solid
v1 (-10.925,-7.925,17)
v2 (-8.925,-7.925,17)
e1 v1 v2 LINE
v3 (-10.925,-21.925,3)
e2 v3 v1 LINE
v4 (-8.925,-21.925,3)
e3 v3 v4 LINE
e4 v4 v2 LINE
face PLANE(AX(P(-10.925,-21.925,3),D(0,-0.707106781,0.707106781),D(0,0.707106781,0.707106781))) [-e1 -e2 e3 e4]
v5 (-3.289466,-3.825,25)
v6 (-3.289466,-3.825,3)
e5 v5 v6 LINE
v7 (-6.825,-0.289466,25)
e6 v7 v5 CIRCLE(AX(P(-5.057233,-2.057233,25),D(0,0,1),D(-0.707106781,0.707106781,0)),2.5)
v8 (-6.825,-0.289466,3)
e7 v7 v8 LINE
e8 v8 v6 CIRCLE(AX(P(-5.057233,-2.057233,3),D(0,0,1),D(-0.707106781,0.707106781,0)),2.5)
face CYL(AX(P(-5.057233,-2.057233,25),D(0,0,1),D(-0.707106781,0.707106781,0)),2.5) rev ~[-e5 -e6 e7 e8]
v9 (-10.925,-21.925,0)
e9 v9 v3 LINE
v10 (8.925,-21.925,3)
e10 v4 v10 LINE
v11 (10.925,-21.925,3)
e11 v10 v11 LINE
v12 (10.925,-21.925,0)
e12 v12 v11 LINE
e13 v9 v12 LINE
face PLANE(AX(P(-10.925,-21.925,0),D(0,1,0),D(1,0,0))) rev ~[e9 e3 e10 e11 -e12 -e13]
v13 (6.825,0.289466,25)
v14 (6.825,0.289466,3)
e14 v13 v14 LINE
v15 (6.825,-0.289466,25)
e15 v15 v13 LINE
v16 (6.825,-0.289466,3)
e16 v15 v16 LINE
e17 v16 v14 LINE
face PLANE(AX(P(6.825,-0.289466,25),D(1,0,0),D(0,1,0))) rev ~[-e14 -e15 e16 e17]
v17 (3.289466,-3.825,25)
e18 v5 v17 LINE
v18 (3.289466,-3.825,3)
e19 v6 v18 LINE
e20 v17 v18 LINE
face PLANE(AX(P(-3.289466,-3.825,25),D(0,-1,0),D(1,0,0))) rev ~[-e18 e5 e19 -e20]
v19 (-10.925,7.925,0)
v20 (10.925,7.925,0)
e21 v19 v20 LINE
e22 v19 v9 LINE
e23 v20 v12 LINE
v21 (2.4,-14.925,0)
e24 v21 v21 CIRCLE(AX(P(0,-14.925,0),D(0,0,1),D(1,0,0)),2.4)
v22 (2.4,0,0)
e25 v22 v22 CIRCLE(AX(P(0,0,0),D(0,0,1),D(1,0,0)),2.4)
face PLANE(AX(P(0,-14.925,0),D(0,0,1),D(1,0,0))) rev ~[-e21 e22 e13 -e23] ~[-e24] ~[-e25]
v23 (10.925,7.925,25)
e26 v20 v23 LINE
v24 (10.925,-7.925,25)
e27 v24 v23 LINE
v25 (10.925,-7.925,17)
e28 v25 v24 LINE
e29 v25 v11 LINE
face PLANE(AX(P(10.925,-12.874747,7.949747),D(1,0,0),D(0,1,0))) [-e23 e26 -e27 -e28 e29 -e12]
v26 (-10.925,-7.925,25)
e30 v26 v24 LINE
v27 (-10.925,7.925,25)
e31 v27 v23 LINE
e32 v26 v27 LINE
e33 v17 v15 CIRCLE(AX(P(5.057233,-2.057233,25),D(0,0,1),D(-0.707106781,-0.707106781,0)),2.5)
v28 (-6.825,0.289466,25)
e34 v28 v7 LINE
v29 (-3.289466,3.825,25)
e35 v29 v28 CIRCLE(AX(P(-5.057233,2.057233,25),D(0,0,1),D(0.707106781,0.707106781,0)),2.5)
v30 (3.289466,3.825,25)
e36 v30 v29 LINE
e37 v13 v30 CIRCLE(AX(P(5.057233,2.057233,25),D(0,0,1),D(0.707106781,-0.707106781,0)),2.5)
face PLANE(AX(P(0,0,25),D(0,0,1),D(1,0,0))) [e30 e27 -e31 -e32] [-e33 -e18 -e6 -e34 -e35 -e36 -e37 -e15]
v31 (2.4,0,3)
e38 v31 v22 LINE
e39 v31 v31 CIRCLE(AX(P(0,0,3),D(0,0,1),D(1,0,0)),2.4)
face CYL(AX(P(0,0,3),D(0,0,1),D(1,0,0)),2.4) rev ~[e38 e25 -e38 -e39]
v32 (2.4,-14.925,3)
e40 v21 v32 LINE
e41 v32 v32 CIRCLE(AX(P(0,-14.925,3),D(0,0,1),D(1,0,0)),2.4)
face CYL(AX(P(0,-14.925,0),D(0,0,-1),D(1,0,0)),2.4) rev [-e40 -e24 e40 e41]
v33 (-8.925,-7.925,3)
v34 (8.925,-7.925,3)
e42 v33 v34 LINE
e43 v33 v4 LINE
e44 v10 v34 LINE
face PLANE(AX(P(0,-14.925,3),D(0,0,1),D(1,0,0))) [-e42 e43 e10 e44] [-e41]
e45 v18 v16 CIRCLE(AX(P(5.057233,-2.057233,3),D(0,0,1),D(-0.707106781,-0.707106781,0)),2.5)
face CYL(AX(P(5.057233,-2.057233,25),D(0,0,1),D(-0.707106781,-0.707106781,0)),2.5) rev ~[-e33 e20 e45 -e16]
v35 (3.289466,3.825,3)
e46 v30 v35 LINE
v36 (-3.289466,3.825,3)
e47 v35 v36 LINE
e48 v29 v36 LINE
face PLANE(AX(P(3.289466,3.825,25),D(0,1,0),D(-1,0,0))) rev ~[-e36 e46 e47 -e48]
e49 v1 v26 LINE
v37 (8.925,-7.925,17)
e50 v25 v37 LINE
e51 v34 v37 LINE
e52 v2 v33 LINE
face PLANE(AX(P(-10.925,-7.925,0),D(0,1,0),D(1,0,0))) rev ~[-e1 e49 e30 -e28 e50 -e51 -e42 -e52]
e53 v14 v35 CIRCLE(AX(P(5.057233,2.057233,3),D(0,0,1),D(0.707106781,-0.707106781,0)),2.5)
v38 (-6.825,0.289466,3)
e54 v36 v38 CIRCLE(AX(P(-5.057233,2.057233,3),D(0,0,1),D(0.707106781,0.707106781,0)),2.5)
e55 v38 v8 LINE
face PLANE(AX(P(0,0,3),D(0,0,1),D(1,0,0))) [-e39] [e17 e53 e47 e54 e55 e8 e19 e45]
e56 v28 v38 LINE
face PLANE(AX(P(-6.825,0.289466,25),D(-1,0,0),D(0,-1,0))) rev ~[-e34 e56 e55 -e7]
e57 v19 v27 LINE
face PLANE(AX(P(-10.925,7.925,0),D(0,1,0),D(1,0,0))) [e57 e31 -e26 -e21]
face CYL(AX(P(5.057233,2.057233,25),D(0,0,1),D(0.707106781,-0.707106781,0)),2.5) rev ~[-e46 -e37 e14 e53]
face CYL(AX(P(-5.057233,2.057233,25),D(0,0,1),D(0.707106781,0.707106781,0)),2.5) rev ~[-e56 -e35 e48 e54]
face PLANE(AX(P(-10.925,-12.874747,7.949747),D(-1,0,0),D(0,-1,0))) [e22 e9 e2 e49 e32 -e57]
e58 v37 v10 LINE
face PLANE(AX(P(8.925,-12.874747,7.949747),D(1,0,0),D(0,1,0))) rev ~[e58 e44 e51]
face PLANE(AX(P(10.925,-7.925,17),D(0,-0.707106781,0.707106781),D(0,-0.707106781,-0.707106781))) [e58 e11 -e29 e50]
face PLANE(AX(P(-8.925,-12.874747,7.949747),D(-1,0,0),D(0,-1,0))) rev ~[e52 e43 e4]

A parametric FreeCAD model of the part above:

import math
import FreeCAD as App
import Part
import Sketcher

V = App.Vector


def add_polygon(sketch, points):
    """Adds a closed chain of lines whose ends are joined by coincident constraints."""
    first, n = sketch.GeometryCount, len(points)
    for a, b in zip(points, points[1:] + points[:1]):
        sketch.addGeometry(Part.LineSegment(App.Vector(*a, 0), App.Vector(*b, 0)), False)
    for i in range(n):
        sketch.addConstraint(Sketcher.Constraint("Coincident", first + i, 2, first + (i + 1) % n, 1))

doc = App.newDocument("Part")
params = doc.addObject("Spreadsheet::Sheet", "Params")
for row, (alias, value) in enumerate([
    ("sketch1_width", "21.85 mm"),
    ("sketch1_height", "15.85 mm"),
    ("pad1_length", "25 mm"),
    ("sketch2_radius", "2.5 mm"),
    ("pocket1_length", "22 mm"),
    ("sketch3_diameter", "4.8 mm"),
    ("sketch4_diameter", "4.8 mm"),
    ("sketch4_height", "14 mm"),
    ("sketch4_width", "21.85 mm"),
    ("pad2_length", "3 mm"),
    ("sketch5_width", "14 mm"),
    ("pad3_length", "2 mm"),
    ("sketch6_width", "14 mm"),
    ("pad4_length", "2 mm"),
], start=1):
    params.set(f"A{row}", alias)
    params.set(f"B{row}", "=" + value)
    params.setAlias(f"B{row}", alias)

body = doc.addObject("PartDesign::Body", "Body")

# Sketch on XY plane
sketch1 = body.newObject("Sketcher::SketchObject", "Sketch")
sketch1.AttachmentSupport = (doc.getObject("XY_Plane"), [""])
sketch1.MapMode = "FlatFace"
add_polygon(sketch1, [(-11, 8), (-11, -8), (11, -8), (11, 8)])  # lines 0-3
sketch1.addConstraint(Sketcher.Constraint("Vertical", 0))
sketch1.addConstraint(Sketcher.Constraint("Horizontal", 1))
sketch1.addConstraint(Sketcher.Constraint("Vertical", 2))
sketch1.addConstraint(Sketcher.Constraint("Horizontal", 3))
sketch1.addConstraint(Sketcher.Constraint("Symmetric", 0, 2, 2, 2, -1, 1))
sketch1.addConstraint(Sketcher.Constraint("DistanceX", 1, 1, 1, 2, 21.85))
sketch1.addConstraint(Sketcher.Constraint("DistanceY", 0, 2, 0, 1, 15.85))
sketch1.setExpression("Constraints[9]", "Params.sketch1_width")
sketch1.setExpression("Constraints[10]", "Params.sketch1_height")
pad1 = body.newObject("PartDesign::Pad", "Pad")
pad1.Profile = sketch1
pad1.setExpression("Length", "Params.pad1_length")

# Sketch on XY plane
sketch2 = body.newObject("Sketcher::SketchObject", "Sketch001")
sketch2.AttachmentSupport = (doc.getObject("XY_Plane"), [""])
sketch2.MapMode = "FlatFace"
sketch2.AttachmentOffset = App.Placement(V(0, 0, 25), App.Rotation())
sketch2.addGeometry(Part.LineSegment(V(3.3, 3.8, 0), V(-3.3, 3.8, 0)), False)
sketch2.addGeometry(Part.ArcOfCircle(Part.Circle(V(-5.1, 2.1, 0), V(0, 0, 1), 2.5), math.radians(45), math.radians(225)), False)
sketch2.addGeometry(Part.LineSegment(V(-6.8, 0.3, 0), V(-6.8, -0.3, 0)), False)
sketch2.addGeometry(Part.ArcOfCircle(Part.Circle(V(-5.1, -2.1, 0), V(0, 0, 1), 2.5), math.radians(135), math.radians(315)), False)
sketch2.addGeometry(Part.LineSegment(V(-3.3, -3.8, 0), V(3.3, -3.8, 0)), False)
sketch2.addGeometry(Part.ArcOfCircle(Part.Circle(V(5.1, -2.1, 0), V(0, 0, 1), 2.5), math.radians(-135), math.radians(45)), False)
sketch2.addGeometry(Part.LineSegment(V(6.8, -0.3, 0), V(6.8, 0.3, 0)), False)
sketch2.addGeometry(Part.ArcOfCircle(Part.Circle(V(5.1, 2.1, 0), V(0, 0, 1), 2.5), math.radians(-45), math.radians(135)), False)
sketch2.addConstraint(Sketcher.Constraint("Coincident", 0, 2, 1, 1))
sketch2.addConstraint(Sketcher.Constraint("Coincident", 1, 2, 2, 1))
sketch2.addConstraint(Sketcher.Constraint("Coincident", 2, 2, 3, 1))
sketch2.addConstraint(Sketcher.Constraint("Coincident", 3, 2, 4, 1))
sketch2.addConstraint(Sketcher.Constraint("Coincident", 4, 2, 5, 1))
sketch2.addConstraint(Sketcher.Constraint("Coincident", 5, 2, 6, 1))
sketch2.addConstraint(Sketcher.Constraint("Coincident", 6, 2, 7, 1))
sketch2.addConstraint(Sketcher.Constraint("Coincident", 7, 2, 0, 1))
sketch2.addConstraint(Sketcher.Constraint("Horizontal", 0))
sketch2.addConstraint(Sketcher.Constraint("Vertical", 2))
sketch2.addConstraint(Sketcher.Constraint("Horizontal", 4))
sketch2.addConstraint(Sketcher.Constraint("Vertical", 6))
sketch2.addConstraint(Sketcher.Constraint("Equal", 1, 3))
sketch2.addConstraint(Sketcher.Constraint("Equal", 3, 5))
sketch2.addConstraint(Sketcher.Constraint("Equal", 5, 7))
sketch2.addConstraint(Sketcher.Constraint("Symmetric", 1, 3, 5, 3, -1, 1))
sketch2.addConstraint(Sketcher.Constraint("Symmetric", 3, 3, 7, 3, -1, 1))
sketch2.addConstraint(Sketcher.Constraint("Symmetric", 3, 3, 5, 3, -2))
sketch2.addConstraint(Sketcher.Constraint("Horizontal", 2, 2, 5, 2))
sketch2.addConstraint(Sketcher.Constraint("Vertical", 0, 2, 3, 2))
sketch2.addConstraint(Sketcher.Constraint("Radius", 1, 2.5))
sketch2.addConstraint(Sketcher.Constraint("DistanceY", 3, 2, 0, 2, 7.65))
sketch2.addConstraint(Sketcher.Constraint("DistanceX", 1, 2, -1, 1, 6.825))
sketch2.addConstraint(Sketcher.Constraint("DistanceX", 0, 2, 7, 3, 8.346699))
sketch2.addConstraint(Sketcher.Constraint("DistanceY", 3, 3, 1, 2, 2.346699))
sketch2.setExpression("Constraints[20]", "Params.sketch2_radius")
pocket1 = body.newObject("PartDesign::Pocket", "Pocket")
pocket1.Profile = sketch2
pocket1.setExpression("Length", "Params.pocket1_length")

# Sketch on XY plane
sketch3 = body.newObject("Sketcher::SketchObject", "Sketch002")
sketch3.AttachmentSupport = (doc.getObject("XY_Plane"), [""])
sketch3.MapMode = "FlatFace"
sketch3.AttachmentOffset = App.Placement(V(0, 0, 3), App.Rotation())
sketch3.addGeometry(Part.Circle(V(0, 0, 0), V(0, 0, 1), 2.4), False)
sketch3.addConstraint(Sketcher.Constraint("Coincident", 0, 3, -1, 1))
sketch3.addConstraint(Sketcher.Constraint("Diameter", 0, 4.8))
sketch3.setExpression("Constraints[1]", "Params.sketch3_diameter")
pocket2 = body.newObject("PartDesign::Pocket", "Pocket001")
pocket2.Profile = sketch3
pocket2.Type = "ThroughAll"

# Sketch on XY plane
sketch4 = body.newObject("Sketcher::SketchObject", "Sketch003")
sketch4.AttachmentSupport = (doc.getObject("XY_Plane"), [""])
sketch4.MapMode = "FlatFace"
add_polygon(sketch4, [(-10.9, -7.9), (-10.9, -21.9), (10.9, -21.9), (10.9, -7.9)])  # lines 0-3
sketch4.addGeometry(Part.Circle(V(0, -14.9, 0), V(0, 0, 1), 2.4), False)  # 4
sketch4.addConstraint(Sketcher.Constraint("Vertical", 0))
sketch4.addConstraint(Sketcher.Constraint("Horizontal", 1))
sketch4.addConstraint(Sketcher.Constraint("Vertical", 2))
sketch4.addConstraint(Sketcher.Constraint("Horizontal", 3))
sketch4.addConstraint(Sketcher.Constraint("PointOnObject", 4, 3, -2))
sketch4.addConstraint(Sketcher.Constraint("Diameter", 4, 4.8))
sketch4.addConstraint(Sketcher.Constraint("DistanceY", 0, 2, 0, 1, 14.0))
sketch4.addConstraint(Sketcher.Constraint("DistanceY", 0, 2, 4, 3, 7.0))
sketch4.addConstraint(Sketcher.Constraint("DistanceX", 1, 1, 1, 2, 21.85))
sketch4.addConstraint(Sketcher.Constraint("DistanceY", 4, 3, -1, 1, 14.925))
sketch4.addConstraint(Sketcher.Constraint("DistanceX", 0, 2, -1, 1, 10.925))
sketch4.setExpression("Constraints[9]", "Params.sketch4_diameter")
sketch4.setExpression("Constraints[10]", "Params.sketch4_height")
sketch4.setExpression("Constraints[12]", "Params.sketch4_width")
pad2 = body.newObject("PartDesign::Pad", "Pad001")
pad2.Profile = sketch4
pad2.setExpression("Length", "Params.pad2_length")

# Sketch on YZ plane
sketch5 = body.newObject("Sketcher::SketchObject", "Sketch004")
sketch5.AttachmentSupport = (doc.getObject("YZ_Plane"), [""])
sketch5.MapMode = "FlatFace"
sketch5.AttachmentOffset = App.Placement(V(0, 0, -10.925), App.Rotation())
add_polygon(sketch5, [(-22, 3), (-8, 17), (-8, 3)])  # lines 0-2
sketch5.addConstraint(Sketcher.Constraint("Vertical", 1))
sketch5.addConstraint(Sketcher.Constraint("Horizontal", 2))
sketch5.addConstraint(Sketcher.Constraint("Equal", 2, 1))
sketch5.addConstraint(Sketcher.Constraint("DistanceX", 2, 2, 2, 1, 14.0))
sketch5.addConstraint(Sketcher.Constraint("DistanceY", -1, 1, 0, 2, 17.0))
sketch5.addConstraint(Sketcher.Constraint("DistanceX", 0, 2, -1, 1, 7.925))
sketch5.setExpression("Constraints[6]", "Params.sketch5_width")
pad3 = body.newObject("PartDesign::Pad", "Pad002")
pad3.Profile = sketch5
pad3.setExpression("Length", "Params.pad3_length")

# Sketch on YZ plane
sketch6 = body.newObject("Sketcher::SketchObject", "Sketch005")
sketch6.AttachmentSupport = (doc.getObject("YZ_Plane"), [""])
sketch6.MapMode = "FlatFace"
sketch6.AttachmentOffset = App.Placement(V(0, 0, 10.925), App.Rotation())
add_polygon(sketch6, [(-8, 3), (-8, 17), (-22, 3)])  # lines 0-2
sketch6.addConstraint(Sketcher.Constraint("Vertical", 0))
sketch6.addConstraint(Sketcher.Constraint("Horizontal", 2))
sketch6.addConstraint(Sketcher.Constraint("Equal", 2, 0))
sketch6.addConstraint(Sketcher.Constraint("DistanceX", 2, 1, 2, 2, 14.0))
sketch6.addConstraint(Sketcher.Constraint("DistanceY", -1, 1, 0, 2, 17.0))
sketch6.addConstraint(Sketcher.Constraint("DistanceX", 0, 2, -1, 1, 7.925))
sketch6.setExpression("Constraints[6]", "Params.sketch6_width")
pad4 = body.newObject("PartDesign::Pad", "Pad003")
pad4.Profile = sketch6
pad4.setExpression("Length", "Params.pad4_length")
pad4.Reversed = True

doc.recompute()
